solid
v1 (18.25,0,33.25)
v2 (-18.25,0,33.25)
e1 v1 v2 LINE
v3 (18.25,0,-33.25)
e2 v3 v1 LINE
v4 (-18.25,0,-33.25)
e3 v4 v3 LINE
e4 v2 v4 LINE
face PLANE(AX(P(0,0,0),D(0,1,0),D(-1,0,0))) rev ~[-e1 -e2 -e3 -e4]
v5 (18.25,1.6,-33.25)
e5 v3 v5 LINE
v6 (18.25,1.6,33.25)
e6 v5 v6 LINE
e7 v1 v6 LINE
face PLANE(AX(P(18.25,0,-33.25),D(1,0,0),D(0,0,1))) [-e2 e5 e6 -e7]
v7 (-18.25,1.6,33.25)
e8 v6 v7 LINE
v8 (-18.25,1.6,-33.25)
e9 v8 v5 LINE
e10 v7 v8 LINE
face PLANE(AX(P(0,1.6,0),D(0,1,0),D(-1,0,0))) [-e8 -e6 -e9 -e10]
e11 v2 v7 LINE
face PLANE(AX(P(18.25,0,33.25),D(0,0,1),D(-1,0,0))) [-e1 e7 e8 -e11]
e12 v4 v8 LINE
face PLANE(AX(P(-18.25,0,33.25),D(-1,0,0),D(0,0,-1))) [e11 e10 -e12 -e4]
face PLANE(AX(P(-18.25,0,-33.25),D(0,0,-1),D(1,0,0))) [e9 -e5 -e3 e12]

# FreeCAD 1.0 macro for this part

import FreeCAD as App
import Part
import Sketcher

V = App.Vector
Q = App.Units.Quantity


def add_polygon(sketch, points):
    """Adds a closed chain of lines whose ends are joined by coincident constraints."""
    first, n = sketch.GeometryCount, len(points)
    for a, b in zip(points, points[1:] + points[:1]):
        sketch.addGeometry(Part.LineSegment(App.Vector(*a, 0), App.Vector(*b, 0)), False)
    for i in range(n):
        sketch.addConstraint(Sketcher.Constraint("Coincident", first + i, 2, first + (i + 1) % n, 1))

doc = App.newDocument("Part")
body = doc.addObject("PartDesign::Body", "Body")

sketch1 = doc.addObject("Sketcher::SketchObject", "Sketch")
body.addObject(sketch1)
sketch1.AttachmentSupport = (doc.XZ_Plane, [""])
sketch1.MapMode = "FlatFace"
add_polygon(sketch1, [(-18.25, 33.25), (18.25, 33.25), (18.25, -33.25), (-18.25, -33.25)])
sketch1.addConstraint(Sketcher.Constraint("Horizontal", 0))
sketch1.addConstraint(Sketcher.Constraint("Vertical", 1))
sketch1.addConstraint(Sketcher.Constraint("Horizontal", 2))
sketch1.addConstraint(Sketcher.Constraint("Vertical", 3))
sketch1.addConstraint(Sketcher.Constraint("Symmetric", 0, 2, 2, 2, -1, 1))
sketch1.addConstraint(Sketcher.Constraint("DistanceX", 0, 1, 0, 2, Q("1.437 in")))
sketch1.addConstraint(Sketcher.Constraint("DistanceY", 1, 2, 1, 1, Q("2.6181 in")))
pad1 = doc.addObject("PartDesign::Pad", "Pad")
body.addObject(pad1)
pad1.Profile = sketch1
pad1.Length = Q("0.0629921 in")
pad1.Reversed = True

doc.recompute()
